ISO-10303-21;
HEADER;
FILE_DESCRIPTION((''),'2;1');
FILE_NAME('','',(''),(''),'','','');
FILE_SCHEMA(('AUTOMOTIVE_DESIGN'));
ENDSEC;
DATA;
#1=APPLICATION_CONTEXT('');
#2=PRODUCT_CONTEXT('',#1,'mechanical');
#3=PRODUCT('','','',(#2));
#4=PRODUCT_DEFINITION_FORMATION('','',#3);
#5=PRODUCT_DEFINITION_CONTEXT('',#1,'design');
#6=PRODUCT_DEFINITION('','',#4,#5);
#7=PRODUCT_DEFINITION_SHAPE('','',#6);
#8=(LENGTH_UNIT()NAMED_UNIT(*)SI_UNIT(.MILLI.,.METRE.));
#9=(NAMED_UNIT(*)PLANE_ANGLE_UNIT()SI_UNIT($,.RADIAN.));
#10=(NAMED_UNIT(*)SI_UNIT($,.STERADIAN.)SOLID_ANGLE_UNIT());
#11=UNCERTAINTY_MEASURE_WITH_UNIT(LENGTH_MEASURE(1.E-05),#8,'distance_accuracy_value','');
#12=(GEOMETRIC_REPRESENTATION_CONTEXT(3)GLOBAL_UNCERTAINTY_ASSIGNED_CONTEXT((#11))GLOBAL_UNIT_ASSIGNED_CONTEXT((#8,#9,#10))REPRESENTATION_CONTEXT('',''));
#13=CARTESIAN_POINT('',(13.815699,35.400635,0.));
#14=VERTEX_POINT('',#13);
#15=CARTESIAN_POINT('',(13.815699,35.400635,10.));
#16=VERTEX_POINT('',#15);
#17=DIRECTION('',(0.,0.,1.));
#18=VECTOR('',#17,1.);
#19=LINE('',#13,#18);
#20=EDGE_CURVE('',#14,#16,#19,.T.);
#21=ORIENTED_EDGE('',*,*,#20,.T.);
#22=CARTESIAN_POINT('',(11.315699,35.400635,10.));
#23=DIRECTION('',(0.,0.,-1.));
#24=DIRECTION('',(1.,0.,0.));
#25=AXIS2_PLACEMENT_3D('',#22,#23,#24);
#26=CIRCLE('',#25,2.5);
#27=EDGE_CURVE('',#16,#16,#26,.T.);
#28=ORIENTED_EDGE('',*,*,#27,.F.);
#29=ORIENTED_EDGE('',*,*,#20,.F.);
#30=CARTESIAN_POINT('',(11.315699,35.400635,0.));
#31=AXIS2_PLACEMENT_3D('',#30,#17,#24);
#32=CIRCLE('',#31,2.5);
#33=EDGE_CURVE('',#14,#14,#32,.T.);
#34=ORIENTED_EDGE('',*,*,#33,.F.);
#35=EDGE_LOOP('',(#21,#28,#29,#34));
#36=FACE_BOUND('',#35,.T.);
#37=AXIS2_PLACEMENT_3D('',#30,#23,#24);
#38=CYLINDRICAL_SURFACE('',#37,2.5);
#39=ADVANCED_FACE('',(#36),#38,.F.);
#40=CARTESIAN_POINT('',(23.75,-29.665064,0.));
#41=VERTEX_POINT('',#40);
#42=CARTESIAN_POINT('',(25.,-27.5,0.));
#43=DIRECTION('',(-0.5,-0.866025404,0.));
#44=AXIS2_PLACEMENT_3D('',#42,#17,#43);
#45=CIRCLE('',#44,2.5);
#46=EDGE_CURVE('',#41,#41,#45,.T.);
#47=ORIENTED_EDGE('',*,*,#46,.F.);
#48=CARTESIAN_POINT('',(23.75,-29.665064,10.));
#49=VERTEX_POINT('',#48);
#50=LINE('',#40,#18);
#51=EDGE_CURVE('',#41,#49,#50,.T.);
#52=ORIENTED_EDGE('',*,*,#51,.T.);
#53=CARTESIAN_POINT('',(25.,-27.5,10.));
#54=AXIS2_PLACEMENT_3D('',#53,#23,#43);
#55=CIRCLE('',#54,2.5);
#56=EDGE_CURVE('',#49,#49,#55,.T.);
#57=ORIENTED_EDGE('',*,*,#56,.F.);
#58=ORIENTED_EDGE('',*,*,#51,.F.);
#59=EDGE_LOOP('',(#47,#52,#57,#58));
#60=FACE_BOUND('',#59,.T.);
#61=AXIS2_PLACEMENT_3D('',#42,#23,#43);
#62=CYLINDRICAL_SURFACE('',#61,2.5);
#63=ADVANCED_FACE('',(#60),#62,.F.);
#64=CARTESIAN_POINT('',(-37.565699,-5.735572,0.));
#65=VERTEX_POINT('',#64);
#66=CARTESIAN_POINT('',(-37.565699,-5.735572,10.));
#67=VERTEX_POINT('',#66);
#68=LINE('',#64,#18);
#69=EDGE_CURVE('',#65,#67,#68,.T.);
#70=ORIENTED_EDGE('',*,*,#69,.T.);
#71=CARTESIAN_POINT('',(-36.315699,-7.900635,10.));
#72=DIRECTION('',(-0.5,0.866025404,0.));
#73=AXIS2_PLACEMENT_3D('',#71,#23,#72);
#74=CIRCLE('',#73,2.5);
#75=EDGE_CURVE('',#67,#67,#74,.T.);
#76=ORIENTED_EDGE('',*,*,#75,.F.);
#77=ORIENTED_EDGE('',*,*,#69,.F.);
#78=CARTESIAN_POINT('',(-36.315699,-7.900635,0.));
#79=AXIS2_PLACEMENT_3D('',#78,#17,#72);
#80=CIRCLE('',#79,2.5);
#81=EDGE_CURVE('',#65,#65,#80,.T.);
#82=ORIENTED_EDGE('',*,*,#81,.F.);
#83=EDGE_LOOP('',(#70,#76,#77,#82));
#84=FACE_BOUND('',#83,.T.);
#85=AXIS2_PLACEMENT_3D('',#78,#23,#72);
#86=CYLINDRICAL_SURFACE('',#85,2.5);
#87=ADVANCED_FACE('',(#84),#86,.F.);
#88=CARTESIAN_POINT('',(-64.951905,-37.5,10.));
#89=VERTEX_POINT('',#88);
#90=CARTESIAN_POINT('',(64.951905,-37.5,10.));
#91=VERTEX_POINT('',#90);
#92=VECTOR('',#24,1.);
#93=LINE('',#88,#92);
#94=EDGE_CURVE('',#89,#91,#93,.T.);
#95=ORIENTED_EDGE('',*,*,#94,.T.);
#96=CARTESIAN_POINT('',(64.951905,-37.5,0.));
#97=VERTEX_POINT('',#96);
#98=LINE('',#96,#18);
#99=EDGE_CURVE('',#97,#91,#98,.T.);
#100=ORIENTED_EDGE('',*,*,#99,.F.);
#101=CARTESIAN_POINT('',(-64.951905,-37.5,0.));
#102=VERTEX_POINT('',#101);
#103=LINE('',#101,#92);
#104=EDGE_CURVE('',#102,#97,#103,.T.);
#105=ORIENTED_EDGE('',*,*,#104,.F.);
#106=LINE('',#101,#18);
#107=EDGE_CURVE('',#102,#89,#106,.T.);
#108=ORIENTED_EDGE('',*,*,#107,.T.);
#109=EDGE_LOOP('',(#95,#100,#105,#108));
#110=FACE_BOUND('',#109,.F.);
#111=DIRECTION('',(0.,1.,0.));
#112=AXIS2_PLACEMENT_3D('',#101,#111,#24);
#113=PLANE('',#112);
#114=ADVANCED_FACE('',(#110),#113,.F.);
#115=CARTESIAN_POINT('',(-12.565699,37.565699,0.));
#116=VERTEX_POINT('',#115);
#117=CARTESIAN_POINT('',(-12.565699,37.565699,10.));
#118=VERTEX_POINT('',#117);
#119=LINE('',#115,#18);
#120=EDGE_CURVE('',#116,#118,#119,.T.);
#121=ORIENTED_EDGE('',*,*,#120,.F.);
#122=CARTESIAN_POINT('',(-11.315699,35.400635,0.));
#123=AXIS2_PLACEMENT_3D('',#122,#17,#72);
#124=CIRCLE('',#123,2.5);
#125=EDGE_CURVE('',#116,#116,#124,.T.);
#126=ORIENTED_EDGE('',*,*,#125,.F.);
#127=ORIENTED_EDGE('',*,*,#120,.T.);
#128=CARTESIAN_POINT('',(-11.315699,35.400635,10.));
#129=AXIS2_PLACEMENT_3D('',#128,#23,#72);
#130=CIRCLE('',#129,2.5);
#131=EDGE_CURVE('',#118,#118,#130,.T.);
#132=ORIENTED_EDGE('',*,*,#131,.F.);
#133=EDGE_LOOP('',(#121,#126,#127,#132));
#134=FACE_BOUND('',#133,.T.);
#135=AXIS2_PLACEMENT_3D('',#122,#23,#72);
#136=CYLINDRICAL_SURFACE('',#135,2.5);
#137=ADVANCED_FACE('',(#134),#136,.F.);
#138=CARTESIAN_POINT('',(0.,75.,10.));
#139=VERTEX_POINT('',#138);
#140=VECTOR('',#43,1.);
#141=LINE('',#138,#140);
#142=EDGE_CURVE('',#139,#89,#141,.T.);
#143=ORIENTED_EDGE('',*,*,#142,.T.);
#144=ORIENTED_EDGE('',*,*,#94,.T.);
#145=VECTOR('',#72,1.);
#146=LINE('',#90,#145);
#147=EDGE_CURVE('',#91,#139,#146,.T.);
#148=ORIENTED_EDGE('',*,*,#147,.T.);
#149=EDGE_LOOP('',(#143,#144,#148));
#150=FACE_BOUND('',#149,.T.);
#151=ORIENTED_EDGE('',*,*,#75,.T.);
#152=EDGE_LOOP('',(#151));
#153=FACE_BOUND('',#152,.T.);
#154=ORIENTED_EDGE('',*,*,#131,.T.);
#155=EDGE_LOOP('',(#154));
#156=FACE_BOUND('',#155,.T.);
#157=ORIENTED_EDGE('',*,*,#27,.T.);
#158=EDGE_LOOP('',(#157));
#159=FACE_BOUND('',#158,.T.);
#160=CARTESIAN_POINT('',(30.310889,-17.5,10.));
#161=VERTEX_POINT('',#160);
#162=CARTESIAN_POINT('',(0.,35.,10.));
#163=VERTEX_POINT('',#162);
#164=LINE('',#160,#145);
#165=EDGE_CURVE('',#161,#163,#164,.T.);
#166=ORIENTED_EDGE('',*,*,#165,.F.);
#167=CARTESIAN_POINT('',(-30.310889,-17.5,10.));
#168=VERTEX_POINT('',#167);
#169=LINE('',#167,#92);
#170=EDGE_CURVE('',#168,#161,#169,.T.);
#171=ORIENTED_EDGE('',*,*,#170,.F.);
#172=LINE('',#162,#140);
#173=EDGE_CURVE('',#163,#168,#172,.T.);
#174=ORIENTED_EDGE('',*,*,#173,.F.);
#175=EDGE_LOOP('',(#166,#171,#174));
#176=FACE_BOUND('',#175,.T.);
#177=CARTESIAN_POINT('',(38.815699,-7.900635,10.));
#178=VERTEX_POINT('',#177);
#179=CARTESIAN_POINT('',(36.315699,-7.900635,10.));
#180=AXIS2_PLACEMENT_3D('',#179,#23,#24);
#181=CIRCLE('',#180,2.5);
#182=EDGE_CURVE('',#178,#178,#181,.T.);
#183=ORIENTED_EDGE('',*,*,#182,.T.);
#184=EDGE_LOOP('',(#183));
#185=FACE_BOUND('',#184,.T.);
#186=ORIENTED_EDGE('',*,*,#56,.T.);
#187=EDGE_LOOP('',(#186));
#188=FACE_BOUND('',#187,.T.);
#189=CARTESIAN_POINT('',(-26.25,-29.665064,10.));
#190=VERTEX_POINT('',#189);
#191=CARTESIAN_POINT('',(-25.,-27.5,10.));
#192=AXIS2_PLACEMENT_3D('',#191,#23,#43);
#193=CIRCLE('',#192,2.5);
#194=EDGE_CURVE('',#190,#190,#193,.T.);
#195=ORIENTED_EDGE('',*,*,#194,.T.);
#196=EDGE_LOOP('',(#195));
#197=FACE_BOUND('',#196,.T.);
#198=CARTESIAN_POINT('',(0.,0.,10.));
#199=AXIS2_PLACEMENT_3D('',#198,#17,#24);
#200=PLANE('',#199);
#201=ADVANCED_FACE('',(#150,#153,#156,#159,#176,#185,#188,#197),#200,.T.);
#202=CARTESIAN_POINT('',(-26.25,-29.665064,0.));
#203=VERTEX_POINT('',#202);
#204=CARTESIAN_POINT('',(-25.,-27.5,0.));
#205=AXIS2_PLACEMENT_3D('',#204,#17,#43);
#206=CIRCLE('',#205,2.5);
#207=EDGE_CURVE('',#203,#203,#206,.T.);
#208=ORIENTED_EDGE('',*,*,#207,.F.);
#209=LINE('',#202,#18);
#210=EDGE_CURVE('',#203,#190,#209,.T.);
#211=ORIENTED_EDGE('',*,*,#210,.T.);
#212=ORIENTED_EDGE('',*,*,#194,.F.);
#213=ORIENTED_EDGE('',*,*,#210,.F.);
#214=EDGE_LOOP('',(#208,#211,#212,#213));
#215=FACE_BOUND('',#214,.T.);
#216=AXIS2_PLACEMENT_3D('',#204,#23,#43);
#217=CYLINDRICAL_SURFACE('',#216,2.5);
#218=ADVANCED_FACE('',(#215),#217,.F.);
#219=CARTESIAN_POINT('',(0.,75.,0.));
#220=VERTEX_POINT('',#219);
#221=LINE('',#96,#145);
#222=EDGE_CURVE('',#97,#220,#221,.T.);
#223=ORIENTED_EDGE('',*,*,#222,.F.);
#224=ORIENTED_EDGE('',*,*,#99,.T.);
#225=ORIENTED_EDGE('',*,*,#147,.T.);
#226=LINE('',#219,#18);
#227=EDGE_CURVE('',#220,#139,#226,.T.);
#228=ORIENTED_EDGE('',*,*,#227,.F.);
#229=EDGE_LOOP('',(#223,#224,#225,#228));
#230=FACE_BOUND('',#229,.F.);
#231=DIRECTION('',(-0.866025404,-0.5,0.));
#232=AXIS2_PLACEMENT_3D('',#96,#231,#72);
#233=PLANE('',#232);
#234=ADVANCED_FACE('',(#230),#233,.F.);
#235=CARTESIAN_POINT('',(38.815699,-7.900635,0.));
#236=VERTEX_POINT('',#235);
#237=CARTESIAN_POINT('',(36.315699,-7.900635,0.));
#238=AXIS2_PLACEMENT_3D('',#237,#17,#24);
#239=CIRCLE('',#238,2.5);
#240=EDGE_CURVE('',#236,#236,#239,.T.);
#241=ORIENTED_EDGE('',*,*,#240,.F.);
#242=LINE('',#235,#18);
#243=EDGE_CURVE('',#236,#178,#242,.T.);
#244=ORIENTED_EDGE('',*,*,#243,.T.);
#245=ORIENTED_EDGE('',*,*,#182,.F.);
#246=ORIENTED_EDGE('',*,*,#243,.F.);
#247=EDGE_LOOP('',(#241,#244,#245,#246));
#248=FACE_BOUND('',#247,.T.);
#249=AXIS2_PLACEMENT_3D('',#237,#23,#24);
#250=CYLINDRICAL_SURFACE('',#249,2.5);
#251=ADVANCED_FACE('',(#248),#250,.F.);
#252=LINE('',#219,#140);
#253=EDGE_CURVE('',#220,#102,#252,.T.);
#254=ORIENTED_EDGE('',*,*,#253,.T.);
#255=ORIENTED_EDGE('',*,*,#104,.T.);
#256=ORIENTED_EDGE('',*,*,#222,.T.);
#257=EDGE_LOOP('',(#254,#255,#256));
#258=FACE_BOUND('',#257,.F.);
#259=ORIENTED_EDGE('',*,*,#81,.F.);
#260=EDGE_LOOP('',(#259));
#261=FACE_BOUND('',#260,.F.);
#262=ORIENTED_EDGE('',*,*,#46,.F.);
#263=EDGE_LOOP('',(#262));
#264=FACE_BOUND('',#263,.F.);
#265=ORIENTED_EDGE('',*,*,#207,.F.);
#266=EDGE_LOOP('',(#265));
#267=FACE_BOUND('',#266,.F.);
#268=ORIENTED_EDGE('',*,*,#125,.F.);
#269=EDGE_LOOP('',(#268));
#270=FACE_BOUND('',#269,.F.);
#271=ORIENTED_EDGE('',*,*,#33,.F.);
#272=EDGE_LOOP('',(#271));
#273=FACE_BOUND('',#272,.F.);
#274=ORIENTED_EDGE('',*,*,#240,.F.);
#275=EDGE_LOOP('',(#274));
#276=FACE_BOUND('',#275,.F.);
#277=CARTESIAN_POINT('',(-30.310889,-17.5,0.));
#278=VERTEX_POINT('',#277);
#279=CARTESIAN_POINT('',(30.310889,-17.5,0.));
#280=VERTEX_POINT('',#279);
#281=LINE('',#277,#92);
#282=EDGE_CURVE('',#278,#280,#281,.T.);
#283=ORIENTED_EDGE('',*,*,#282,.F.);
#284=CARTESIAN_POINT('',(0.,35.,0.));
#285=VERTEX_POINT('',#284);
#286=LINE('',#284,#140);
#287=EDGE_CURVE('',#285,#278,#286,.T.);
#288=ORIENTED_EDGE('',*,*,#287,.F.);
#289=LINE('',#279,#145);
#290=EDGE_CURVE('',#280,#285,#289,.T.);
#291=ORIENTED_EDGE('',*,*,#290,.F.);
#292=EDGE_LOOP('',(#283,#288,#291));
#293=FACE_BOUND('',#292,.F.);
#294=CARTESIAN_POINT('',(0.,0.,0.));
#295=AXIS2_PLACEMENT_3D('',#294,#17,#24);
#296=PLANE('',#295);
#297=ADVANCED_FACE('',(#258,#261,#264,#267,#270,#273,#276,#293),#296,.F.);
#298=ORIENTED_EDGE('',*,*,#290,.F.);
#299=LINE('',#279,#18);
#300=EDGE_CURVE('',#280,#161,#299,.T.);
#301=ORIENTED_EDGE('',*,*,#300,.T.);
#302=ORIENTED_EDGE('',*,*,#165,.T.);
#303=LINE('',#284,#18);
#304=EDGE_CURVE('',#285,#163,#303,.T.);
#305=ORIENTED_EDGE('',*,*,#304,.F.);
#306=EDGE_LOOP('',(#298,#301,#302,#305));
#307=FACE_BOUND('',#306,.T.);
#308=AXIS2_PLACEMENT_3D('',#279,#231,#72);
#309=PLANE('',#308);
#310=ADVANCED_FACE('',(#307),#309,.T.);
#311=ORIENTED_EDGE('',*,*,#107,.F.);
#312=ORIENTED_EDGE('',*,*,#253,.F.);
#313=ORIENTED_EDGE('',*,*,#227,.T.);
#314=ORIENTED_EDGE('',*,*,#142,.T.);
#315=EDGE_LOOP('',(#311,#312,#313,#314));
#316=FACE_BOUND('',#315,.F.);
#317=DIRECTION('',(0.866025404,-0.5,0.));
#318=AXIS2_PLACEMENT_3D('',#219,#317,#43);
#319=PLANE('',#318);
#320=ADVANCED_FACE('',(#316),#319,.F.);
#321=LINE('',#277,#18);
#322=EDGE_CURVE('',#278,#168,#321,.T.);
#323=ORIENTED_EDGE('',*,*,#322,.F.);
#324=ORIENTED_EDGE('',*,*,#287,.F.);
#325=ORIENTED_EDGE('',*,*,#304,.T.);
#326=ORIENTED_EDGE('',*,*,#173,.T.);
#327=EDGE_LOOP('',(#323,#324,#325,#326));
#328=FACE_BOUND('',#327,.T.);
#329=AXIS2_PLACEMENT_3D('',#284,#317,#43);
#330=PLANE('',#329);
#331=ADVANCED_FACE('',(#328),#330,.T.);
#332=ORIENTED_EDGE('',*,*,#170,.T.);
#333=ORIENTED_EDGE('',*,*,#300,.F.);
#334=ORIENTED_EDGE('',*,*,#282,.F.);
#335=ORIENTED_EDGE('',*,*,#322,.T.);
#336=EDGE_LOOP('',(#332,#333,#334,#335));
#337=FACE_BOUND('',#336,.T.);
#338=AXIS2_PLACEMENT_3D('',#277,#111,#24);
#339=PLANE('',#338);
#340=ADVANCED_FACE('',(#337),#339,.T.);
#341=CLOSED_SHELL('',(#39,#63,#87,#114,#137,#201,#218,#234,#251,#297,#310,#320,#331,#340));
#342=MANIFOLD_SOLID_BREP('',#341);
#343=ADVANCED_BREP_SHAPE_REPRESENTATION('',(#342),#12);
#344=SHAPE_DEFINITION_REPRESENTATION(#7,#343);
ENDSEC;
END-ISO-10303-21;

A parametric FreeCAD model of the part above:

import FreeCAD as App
import Part
import Sketcher

V = App.Vector
Q = App.Units.Quantity


def add_polygon(sketch, points):
    """Adds a closed chain of lines whose ends are joined by coincident constraints."""
    first, n = sketch.GeometryCount, len(points)
    for a, b in zip(points, points[1:] + points[:1]):
        sketch.addGeometry(Part.LineSegment(App.Vector(*a, 0), App.Vector(*b, 0)), False)
    for i in range(n):
        sketch.addConstraint(Sketcher.Constraint("Coincident", first + i, 2, first + (i + 1) % n, 1))

doc = App.newDocument("Part")
body = doc.addObject("PartDesign::Body", "Body")

# Sketch on XY plane
sketch1 = body.newObject("Sketcher::SketchObject", "Sketch")
sketch1.AttachmentSupport = (doc.getObject("XY_Plane"), [""])
sketch1.MapMode = "FlatFace"
add_polygon(sketch1, [(0, 75), (-65, -38), (65, -38)])  # lines 0-2
add_polygon(sketch1, [(-30, -18), (0, 35), (30, -18)])  # lines 3-5
sketch1.addConstraint([
    Sketcher.Constraint("Horizontal", 1),
    Sketcher.Constraint("Horizontal", 5),
    Sketcher.Constraint("PointOnObject", 2, 2, -2),
    Sketcher.Constraint("PointOnObject", 3, 2, -2),
    Sketcher.Constraint("Parallel", 0, 3),
    Sketcher.Constraint("Parallel", 2, 4),
    Sketcher.Constraint("Equal", 0, 2),
    Sketcher.Constraint("Angle", 0, Q("-120 deg")),
    Sketcher.Constraint("DistanceY", -1, 1, 2, 2, Q("75 mm")),
    Sketcher.Constraint("DistanceY", -1, 1, 3, 2, Q("35 mm")),
    Sketcher.Constraint("DistanceY", 1, 2, 4, 2, Q("20 mm")),
    Sketcher.Constraint("DistanceY", 0, 2, -1, 1, Q("37.5 mm")),
])
pad1 = body.newObject("PartDesign::Pad", "Pad")
pad1.Profile = sketch1
pad1.Length = 10

# Sketch on XY plane
sketch2 = body.newObject("Sketcher::SketchObject", "Sketch001")
sketch2.AttachmentSupport = (doc.getObject("XY_Plane"), [""])
sketch2.MapMode = "FlatFace"
sketch2.addGeometry([
    Part.Circle(V(11.3, 35.4, 0), V(0, 0, 1), 2.5),
    Part.Circle(V(36.3, -7.9, 0), V(0, 0, 1), 2.5),
], False)
sketch2.addConstraint([
    Sketcher.Constraint("Equal", 0, 1),
    Sketcher.Constraint("Diameter", 0, Q("5 mm")),
    Sketcher.Constraint("DistanceX", 0, 3, 1, 3, Q("25 mm")),
    Sketcher.Constraint("DistanceX", -1, 1, 0, 3, Q("11.315699 mm")),
    Sketcher.Constraint("DistanceY", 1, 3, 0, 3, Q("43.30127 mm")),
    Sketcher.Constraint("DistanceY", -1, 1, 0, 3, Q("35.400635 mm")),
])
pocket1 = body.newObject("PartDesign::Pocket", "Pocket")
pocket1.Profile = sketch2
pocket1.Type = "ThroughAll"
pocket1.Reversed = True
doc.recompute()

polarpattern = body.newObject("PartDesign::PolarPattern", "PolarPattern")
polarpattern.Originals = [pocket1]
polarpattern.Axis = (doc.getObject("Z_Axis"), [""])
polarpattern.Angle = 360
polarpattern.Occurrences = 3
body.Tip = polarpattern

doc.recompute()
